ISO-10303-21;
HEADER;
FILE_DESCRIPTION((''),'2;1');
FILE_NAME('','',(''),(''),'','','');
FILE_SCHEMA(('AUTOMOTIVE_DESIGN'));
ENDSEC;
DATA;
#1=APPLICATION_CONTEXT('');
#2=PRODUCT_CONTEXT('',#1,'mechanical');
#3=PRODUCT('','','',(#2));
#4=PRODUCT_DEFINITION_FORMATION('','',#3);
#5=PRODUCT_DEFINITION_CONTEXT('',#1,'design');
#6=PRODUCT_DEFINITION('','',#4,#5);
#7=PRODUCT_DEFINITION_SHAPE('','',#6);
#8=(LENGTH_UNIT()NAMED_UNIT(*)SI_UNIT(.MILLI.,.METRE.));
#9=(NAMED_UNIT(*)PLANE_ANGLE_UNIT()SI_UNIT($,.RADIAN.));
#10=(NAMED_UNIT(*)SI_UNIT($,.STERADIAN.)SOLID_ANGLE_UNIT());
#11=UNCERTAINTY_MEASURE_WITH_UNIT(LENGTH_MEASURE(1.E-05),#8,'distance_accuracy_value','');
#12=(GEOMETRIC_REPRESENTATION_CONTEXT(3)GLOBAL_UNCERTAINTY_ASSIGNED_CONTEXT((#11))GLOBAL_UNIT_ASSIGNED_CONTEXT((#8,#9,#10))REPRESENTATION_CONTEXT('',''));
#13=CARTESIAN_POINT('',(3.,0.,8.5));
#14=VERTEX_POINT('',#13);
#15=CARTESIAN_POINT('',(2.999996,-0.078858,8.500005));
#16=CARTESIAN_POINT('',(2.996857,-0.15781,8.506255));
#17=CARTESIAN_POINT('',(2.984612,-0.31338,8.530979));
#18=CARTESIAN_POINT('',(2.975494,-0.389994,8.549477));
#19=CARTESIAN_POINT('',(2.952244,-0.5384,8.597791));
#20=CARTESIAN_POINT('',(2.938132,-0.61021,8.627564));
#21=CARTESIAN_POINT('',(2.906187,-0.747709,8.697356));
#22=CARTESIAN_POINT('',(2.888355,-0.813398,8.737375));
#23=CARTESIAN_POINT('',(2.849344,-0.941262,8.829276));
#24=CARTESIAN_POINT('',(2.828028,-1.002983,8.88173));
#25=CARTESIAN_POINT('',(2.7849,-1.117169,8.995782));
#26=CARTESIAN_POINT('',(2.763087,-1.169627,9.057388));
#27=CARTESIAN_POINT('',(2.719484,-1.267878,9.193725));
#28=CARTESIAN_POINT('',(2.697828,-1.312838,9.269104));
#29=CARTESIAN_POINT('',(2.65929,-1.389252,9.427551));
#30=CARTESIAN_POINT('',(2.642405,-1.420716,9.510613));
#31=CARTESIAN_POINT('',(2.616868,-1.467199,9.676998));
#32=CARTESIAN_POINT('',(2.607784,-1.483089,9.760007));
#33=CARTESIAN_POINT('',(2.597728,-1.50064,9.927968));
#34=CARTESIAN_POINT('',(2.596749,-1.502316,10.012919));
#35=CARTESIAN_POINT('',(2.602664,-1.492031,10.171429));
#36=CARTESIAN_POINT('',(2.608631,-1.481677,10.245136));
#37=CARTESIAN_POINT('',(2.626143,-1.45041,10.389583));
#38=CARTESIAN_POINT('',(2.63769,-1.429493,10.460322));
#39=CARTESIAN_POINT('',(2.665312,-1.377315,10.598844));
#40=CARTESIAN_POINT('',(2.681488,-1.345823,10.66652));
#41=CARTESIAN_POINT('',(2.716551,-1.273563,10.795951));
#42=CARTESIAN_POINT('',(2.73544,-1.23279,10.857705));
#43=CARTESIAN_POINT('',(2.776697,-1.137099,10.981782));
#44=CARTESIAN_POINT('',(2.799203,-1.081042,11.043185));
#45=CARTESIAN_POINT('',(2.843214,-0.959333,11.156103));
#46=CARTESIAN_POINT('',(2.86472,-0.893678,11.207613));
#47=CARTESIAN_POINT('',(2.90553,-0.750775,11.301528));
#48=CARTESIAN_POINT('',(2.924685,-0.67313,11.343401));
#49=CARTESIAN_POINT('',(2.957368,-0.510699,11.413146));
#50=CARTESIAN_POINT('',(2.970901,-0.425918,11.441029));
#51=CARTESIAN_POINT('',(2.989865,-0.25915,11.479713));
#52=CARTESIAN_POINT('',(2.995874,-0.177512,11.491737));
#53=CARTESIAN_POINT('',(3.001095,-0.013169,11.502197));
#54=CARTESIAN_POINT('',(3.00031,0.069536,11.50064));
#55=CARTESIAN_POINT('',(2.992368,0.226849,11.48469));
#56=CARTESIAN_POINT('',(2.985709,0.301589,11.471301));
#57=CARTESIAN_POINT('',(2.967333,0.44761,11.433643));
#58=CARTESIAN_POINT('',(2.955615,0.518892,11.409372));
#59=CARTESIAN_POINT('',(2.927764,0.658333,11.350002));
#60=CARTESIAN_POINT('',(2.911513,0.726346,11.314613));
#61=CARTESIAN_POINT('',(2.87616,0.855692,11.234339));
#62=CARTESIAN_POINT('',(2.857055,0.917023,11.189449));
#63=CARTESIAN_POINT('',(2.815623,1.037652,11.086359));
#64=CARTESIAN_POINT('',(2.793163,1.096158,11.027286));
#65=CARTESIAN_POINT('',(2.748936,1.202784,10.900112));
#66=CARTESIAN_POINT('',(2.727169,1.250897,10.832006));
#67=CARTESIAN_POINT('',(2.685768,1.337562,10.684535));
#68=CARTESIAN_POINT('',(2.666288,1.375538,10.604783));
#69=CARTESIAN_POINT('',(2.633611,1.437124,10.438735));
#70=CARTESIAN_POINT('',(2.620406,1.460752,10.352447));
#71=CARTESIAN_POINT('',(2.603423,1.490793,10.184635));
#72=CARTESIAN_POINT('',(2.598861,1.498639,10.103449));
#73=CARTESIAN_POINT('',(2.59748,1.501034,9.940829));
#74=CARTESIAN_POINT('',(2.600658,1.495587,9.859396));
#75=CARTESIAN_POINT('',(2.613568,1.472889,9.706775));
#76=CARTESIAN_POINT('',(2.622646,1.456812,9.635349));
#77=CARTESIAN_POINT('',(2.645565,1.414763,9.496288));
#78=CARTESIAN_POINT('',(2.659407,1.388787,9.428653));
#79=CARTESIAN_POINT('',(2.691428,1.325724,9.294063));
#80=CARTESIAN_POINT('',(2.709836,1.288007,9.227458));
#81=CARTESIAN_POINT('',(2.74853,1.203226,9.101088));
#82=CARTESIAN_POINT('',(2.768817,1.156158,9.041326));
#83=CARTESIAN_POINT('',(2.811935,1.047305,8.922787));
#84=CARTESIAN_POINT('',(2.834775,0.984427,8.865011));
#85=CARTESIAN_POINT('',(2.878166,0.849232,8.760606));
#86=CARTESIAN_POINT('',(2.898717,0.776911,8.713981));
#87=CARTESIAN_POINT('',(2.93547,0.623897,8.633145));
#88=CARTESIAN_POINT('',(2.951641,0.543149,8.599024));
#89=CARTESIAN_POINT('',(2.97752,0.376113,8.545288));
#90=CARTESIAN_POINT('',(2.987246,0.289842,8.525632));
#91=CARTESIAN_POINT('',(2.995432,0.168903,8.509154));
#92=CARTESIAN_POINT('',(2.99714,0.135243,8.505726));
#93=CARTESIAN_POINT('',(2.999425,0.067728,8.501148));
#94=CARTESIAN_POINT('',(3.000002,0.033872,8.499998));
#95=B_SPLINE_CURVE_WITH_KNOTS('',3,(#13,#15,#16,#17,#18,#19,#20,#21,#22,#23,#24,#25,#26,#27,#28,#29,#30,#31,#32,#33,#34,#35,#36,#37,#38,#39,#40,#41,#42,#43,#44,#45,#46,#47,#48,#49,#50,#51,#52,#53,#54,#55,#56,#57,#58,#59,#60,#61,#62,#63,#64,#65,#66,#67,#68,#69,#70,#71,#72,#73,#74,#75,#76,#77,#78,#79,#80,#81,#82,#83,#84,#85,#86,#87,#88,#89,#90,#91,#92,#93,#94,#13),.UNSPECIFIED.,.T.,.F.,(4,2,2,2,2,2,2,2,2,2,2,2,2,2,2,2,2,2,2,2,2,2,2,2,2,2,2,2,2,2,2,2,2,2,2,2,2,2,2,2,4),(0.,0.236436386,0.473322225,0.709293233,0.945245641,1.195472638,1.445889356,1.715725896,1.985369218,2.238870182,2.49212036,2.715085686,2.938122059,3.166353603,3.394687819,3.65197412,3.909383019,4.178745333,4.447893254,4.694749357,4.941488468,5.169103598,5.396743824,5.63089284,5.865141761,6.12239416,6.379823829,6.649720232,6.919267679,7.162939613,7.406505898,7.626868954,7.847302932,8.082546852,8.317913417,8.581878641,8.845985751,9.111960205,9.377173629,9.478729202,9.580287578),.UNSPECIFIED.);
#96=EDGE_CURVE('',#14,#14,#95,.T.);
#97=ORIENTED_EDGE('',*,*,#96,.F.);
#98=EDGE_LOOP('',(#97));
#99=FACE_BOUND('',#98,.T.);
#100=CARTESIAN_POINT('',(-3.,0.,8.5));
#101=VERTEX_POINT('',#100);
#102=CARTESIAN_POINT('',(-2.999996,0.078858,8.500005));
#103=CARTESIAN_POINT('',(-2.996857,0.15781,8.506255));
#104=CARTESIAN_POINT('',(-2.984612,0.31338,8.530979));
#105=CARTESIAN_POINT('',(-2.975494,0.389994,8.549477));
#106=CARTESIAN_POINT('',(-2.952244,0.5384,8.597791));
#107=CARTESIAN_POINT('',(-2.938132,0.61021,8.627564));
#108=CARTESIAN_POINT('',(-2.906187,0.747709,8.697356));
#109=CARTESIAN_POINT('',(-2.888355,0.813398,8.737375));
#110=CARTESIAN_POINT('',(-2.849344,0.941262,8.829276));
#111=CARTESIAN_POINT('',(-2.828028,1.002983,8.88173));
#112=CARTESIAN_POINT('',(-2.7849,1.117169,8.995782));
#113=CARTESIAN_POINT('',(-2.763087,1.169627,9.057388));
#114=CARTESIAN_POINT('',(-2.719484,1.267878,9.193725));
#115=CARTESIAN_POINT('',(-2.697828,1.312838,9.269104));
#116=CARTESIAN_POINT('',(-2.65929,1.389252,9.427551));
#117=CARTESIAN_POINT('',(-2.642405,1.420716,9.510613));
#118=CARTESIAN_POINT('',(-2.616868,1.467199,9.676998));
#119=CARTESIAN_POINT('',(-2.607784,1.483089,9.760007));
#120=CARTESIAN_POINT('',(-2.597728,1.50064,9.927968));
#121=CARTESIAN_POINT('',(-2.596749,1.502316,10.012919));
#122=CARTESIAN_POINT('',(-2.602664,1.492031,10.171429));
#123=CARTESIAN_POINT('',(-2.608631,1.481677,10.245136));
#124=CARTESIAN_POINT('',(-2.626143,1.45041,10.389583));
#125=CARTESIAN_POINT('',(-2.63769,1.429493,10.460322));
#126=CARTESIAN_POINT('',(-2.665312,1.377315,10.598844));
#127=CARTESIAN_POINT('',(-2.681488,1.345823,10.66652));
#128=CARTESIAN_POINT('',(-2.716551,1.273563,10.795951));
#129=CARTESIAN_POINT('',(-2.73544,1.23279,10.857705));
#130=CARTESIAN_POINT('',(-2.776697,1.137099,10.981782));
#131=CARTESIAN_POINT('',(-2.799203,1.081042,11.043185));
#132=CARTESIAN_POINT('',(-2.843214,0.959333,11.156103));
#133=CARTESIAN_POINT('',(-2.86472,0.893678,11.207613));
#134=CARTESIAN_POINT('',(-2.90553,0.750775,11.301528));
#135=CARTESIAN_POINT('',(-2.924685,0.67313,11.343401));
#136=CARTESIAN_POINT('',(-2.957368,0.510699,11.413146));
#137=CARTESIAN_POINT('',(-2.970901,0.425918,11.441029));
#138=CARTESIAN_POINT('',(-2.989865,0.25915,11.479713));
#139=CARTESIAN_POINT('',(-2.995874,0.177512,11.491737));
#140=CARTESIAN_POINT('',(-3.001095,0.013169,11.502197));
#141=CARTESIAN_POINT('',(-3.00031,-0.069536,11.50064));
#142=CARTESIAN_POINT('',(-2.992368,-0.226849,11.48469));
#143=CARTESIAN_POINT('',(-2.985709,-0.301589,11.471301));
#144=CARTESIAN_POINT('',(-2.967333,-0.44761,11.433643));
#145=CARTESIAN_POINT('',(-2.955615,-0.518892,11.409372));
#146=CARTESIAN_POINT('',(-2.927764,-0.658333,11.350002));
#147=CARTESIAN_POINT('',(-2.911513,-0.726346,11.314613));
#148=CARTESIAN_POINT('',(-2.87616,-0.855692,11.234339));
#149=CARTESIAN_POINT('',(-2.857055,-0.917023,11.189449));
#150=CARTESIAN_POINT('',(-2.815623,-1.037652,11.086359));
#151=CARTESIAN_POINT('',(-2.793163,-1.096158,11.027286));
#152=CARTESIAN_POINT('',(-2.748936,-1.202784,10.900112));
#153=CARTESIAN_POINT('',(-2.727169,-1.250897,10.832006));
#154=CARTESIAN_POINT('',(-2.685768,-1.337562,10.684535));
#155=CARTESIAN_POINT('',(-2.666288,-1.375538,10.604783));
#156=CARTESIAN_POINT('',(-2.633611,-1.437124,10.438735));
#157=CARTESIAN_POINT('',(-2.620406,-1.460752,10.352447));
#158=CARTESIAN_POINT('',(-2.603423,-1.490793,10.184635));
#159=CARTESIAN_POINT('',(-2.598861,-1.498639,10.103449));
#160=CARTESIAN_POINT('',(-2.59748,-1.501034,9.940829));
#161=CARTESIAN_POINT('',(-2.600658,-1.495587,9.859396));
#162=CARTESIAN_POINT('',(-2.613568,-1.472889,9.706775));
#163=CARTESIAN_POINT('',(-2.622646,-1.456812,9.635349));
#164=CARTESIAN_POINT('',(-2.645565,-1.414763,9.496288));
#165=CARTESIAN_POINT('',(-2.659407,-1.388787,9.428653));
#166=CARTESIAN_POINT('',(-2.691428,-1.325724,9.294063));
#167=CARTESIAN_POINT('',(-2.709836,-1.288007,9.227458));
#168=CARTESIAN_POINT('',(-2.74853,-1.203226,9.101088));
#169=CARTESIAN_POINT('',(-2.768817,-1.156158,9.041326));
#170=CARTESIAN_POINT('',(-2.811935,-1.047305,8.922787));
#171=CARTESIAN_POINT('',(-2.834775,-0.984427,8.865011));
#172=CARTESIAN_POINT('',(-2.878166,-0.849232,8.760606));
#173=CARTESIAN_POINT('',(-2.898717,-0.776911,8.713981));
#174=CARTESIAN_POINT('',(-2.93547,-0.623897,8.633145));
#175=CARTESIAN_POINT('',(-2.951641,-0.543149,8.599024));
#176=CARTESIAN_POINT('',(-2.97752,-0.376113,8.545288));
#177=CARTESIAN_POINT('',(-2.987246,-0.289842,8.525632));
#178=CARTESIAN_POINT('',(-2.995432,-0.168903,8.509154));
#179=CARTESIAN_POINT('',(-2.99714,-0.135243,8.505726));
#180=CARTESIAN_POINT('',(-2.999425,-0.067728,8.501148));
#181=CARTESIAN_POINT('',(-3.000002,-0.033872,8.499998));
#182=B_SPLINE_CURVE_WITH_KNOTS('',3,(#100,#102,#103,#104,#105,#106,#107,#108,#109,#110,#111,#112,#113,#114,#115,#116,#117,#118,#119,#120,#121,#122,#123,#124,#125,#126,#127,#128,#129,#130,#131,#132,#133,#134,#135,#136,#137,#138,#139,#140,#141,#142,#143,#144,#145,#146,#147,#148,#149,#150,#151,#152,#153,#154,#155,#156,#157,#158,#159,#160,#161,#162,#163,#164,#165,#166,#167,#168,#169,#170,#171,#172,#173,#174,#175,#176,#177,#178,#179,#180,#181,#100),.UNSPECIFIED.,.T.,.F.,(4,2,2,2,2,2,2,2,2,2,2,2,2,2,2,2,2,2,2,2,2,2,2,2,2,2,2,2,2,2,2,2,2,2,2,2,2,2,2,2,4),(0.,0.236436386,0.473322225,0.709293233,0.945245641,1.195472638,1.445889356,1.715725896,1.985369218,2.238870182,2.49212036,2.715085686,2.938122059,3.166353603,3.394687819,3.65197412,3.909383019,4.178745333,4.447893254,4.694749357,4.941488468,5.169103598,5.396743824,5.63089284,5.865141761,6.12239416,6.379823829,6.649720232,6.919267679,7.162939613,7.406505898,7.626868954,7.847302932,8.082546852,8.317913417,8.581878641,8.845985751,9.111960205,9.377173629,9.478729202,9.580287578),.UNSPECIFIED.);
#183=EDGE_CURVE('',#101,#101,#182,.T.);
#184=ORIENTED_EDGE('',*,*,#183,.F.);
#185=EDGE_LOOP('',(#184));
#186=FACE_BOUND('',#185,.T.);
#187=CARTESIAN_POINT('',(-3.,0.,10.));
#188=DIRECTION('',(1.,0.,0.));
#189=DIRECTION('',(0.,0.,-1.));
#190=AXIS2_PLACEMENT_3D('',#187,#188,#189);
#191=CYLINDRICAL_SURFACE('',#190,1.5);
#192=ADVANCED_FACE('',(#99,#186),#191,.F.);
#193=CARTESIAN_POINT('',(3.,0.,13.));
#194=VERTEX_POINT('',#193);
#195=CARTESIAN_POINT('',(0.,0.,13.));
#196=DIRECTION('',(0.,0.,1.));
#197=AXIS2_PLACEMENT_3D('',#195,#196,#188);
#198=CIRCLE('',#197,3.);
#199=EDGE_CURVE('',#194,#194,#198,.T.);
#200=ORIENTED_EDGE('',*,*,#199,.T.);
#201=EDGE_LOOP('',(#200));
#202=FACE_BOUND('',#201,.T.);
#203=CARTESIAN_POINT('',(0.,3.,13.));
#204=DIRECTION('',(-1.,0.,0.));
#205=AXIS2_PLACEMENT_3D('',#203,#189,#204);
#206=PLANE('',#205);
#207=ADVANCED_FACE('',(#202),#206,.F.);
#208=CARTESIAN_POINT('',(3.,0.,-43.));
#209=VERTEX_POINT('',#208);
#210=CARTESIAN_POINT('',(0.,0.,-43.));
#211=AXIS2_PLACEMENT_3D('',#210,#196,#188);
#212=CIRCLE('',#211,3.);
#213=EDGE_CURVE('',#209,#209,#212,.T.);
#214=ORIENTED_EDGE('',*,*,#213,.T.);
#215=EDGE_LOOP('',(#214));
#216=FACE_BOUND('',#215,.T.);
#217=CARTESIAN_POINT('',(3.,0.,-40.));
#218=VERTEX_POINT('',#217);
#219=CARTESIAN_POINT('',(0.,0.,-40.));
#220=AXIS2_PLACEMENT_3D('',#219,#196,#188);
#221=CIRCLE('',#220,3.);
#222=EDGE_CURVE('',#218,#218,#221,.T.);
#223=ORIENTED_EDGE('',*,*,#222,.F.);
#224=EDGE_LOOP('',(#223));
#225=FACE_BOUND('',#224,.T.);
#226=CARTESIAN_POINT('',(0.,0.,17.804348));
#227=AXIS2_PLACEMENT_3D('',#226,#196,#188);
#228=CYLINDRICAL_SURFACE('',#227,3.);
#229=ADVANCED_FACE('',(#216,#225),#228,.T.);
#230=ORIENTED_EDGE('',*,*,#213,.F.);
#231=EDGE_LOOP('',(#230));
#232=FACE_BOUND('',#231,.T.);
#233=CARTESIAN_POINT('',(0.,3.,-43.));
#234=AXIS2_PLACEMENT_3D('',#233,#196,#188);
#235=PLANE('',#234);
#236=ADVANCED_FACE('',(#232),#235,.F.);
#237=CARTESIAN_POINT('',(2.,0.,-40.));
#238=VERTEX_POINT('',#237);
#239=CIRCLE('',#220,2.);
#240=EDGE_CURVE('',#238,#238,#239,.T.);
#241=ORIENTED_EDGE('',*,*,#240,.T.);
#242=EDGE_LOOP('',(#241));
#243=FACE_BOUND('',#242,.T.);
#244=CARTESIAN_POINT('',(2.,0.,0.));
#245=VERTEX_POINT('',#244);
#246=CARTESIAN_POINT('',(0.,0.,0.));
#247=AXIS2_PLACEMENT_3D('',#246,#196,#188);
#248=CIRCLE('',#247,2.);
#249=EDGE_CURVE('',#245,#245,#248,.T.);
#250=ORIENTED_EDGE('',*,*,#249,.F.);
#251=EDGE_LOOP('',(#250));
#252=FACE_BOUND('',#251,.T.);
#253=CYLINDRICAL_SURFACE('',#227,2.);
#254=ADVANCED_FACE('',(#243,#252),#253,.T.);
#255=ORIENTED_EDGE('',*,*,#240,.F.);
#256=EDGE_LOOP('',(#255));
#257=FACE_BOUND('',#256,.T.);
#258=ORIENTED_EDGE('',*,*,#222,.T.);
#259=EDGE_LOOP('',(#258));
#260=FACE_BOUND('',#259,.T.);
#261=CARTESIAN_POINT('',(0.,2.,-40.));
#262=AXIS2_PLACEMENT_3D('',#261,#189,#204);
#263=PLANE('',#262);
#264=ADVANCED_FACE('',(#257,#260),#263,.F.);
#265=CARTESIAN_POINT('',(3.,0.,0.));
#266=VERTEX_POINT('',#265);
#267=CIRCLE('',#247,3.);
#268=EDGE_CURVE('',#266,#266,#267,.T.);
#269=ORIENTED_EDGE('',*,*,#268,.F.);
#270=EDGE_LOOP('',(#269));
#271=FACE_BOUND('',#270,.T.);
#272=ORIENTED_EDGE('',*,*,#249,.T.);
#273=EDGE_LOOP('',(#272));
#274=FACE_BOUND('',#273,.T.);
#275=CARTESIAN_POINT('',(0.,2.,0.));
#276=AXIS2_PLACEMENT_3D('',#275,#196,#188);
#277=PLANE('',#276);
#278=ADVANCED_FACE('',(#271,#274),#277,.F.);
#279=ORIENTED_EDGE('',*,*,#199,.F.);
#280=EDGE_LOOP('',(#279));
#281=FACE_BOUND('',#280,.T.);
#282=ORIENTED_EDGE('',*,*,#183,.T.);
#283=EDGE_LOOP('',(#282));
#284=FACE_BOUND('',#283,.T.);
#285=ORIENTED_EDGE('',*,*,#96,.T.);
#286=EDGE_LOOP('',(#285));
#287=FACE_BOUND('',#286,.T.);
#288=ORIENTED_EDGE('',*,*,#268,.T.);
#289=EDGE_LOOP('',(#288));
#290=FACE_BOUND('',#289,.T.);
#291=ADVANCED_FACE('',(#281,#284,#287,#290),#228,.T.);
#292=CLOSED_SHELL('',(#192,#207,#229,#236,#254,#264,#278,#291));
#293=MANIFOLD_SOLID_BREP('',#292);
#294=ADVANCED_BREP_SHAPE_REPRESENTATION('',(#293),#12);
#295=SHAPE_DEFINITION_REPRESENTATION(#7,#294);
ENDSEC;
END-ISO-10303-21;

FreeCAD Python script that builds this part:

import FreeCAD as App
import Part
import Sketcher
from FreeCAD import Vector
Q = App.Units.Quantity

doc = App.newDocument("Part")
body = doc.addObject("PartDesign::Body", "Body")

sketch1 = body.newObject("Sketcher::SketchObject", "Sketch")
sketch1.AttachmentSupport = (doc.getObject("YZ_Plane"), [""])
sketch1.MapMode = "FlatFace"
sketch1.addGeometry([
    Part.LineSegment(Vector(2, 0, 0), Vector(3, 0, 0)),
    Part.LineSegment(Vector(3, 0, 0), Vector(3, 13, 0)),
    Part.LineSegment(Vector(3, 13, 0), Vector(0, 13, 0)),
    Part.LineSegment(Vector(0, 13, 0), Vector(0, -43, 0)),
    Part.LineSegment(Vector(0, -43, 0), Vector(3, -43, 0)),
    Part.LineSegment(Vector(3, -43, 0), Vector(3, -40, 0)),
    Part.LineSegment(Vector(3, -40, 0), Vector(2, -40, 0)),
    Part.LineSegment(Vector(2, -40, 0), Vector(2, 0, 0)),
], False)
sketch1.addConstraint([
    Sketcher.Constraint("Coincident", 0, 2, 1, 1),
    Sketcher.Constraint("Coincident", 1, 2, 2, 1),
    Sketcher.Constraint("Coincident", 2, 2, 3, 1),
    Sketcher.Constraint("Coincident", 3, 2, 4, 1),
    Sketcher.Constraint("Coincident", 4, 2, 5, 1),
    Sketcher.Constraint("Coincident", 5, 2, 6, 1),
    Sketcher.Constraint("Coincident", 6, 2, 7, 1),
    Sketcher.Constraint("Coincident", 7, 2, 0, 1),
    Sketcher.Constraint("Horizontal", 0),
    Sketcher.Constraint("Vertical", 1),
    Sketcher.Constraint("Horizontal", 2),
    Sketcher.Constraint("Vertical", 3),
    Sketcher.Constraint("Horizontal", 4),
    Sketcher.Constraint("Vertical", 5),
    Sketcher.Constraint("Horizontal", 6),
    Sketcher.Constraint("Vertical", 7),
    Sketcher.Constraint("PointOnObject", 0, 2, -1),
    Sketcher.Constraint("PointOnObject", 2, 2, -2),
    Sketcher.Constraint("Vertical", 1, 2, 4, 2),
    Sketcher.Constraint("Equal", 4, 5),
    Sketcher.Constraint("DistanceX", 0, 1, 0, 2, Q("1 mm")),
    Sketcher.Constraint("DistanceX", 2, 2, 2, 1, Q("3 mm")),
    Sketcher.Constraint("DistanceY", 1, 1, 1, 2, Q("13 mm")),
    Sketcher.Constraint("DistanceY", 3, 2, 3, 1, Q("56 mm")),
])
revolution = body.newObject("PartDesign::Revolution", "Revolution")
revolution.Profile = sketch1
revolution.ReferenceAxis = (sketch1, ["V_Axis"])
revolution.Angle = 360

sketch2 = body.newObject("Sketcher::SketchObject", "Sketch001")
sketch2.AttachmentSupport = (doc.getObject("YZ_Plane"), [""])
sketch2.MapMode = "FlatFace"
sketch2.addGeometry(Part.Circle(Vector(0, 10, 0), Vector(0, 0, 1), 1.5), False)
sketch2.addConstraint([
    Sketcher.Constraint("PointOnObject", 0, 3, -2),
    Sketcher.Constraint("Diameter", 0, Q("3 mm")),
    Sketcher.Constraint("DistanceY", -1, 1, 0, 3, Q("10 mm")),
])
pocket1 = body.newObject("PartDesign::Pocket", "Pocket")
pocket1.Profile = sketch2
pocket1.Type = "ThroughAll"
pocket1.Midplane = True

doc.recompute()
